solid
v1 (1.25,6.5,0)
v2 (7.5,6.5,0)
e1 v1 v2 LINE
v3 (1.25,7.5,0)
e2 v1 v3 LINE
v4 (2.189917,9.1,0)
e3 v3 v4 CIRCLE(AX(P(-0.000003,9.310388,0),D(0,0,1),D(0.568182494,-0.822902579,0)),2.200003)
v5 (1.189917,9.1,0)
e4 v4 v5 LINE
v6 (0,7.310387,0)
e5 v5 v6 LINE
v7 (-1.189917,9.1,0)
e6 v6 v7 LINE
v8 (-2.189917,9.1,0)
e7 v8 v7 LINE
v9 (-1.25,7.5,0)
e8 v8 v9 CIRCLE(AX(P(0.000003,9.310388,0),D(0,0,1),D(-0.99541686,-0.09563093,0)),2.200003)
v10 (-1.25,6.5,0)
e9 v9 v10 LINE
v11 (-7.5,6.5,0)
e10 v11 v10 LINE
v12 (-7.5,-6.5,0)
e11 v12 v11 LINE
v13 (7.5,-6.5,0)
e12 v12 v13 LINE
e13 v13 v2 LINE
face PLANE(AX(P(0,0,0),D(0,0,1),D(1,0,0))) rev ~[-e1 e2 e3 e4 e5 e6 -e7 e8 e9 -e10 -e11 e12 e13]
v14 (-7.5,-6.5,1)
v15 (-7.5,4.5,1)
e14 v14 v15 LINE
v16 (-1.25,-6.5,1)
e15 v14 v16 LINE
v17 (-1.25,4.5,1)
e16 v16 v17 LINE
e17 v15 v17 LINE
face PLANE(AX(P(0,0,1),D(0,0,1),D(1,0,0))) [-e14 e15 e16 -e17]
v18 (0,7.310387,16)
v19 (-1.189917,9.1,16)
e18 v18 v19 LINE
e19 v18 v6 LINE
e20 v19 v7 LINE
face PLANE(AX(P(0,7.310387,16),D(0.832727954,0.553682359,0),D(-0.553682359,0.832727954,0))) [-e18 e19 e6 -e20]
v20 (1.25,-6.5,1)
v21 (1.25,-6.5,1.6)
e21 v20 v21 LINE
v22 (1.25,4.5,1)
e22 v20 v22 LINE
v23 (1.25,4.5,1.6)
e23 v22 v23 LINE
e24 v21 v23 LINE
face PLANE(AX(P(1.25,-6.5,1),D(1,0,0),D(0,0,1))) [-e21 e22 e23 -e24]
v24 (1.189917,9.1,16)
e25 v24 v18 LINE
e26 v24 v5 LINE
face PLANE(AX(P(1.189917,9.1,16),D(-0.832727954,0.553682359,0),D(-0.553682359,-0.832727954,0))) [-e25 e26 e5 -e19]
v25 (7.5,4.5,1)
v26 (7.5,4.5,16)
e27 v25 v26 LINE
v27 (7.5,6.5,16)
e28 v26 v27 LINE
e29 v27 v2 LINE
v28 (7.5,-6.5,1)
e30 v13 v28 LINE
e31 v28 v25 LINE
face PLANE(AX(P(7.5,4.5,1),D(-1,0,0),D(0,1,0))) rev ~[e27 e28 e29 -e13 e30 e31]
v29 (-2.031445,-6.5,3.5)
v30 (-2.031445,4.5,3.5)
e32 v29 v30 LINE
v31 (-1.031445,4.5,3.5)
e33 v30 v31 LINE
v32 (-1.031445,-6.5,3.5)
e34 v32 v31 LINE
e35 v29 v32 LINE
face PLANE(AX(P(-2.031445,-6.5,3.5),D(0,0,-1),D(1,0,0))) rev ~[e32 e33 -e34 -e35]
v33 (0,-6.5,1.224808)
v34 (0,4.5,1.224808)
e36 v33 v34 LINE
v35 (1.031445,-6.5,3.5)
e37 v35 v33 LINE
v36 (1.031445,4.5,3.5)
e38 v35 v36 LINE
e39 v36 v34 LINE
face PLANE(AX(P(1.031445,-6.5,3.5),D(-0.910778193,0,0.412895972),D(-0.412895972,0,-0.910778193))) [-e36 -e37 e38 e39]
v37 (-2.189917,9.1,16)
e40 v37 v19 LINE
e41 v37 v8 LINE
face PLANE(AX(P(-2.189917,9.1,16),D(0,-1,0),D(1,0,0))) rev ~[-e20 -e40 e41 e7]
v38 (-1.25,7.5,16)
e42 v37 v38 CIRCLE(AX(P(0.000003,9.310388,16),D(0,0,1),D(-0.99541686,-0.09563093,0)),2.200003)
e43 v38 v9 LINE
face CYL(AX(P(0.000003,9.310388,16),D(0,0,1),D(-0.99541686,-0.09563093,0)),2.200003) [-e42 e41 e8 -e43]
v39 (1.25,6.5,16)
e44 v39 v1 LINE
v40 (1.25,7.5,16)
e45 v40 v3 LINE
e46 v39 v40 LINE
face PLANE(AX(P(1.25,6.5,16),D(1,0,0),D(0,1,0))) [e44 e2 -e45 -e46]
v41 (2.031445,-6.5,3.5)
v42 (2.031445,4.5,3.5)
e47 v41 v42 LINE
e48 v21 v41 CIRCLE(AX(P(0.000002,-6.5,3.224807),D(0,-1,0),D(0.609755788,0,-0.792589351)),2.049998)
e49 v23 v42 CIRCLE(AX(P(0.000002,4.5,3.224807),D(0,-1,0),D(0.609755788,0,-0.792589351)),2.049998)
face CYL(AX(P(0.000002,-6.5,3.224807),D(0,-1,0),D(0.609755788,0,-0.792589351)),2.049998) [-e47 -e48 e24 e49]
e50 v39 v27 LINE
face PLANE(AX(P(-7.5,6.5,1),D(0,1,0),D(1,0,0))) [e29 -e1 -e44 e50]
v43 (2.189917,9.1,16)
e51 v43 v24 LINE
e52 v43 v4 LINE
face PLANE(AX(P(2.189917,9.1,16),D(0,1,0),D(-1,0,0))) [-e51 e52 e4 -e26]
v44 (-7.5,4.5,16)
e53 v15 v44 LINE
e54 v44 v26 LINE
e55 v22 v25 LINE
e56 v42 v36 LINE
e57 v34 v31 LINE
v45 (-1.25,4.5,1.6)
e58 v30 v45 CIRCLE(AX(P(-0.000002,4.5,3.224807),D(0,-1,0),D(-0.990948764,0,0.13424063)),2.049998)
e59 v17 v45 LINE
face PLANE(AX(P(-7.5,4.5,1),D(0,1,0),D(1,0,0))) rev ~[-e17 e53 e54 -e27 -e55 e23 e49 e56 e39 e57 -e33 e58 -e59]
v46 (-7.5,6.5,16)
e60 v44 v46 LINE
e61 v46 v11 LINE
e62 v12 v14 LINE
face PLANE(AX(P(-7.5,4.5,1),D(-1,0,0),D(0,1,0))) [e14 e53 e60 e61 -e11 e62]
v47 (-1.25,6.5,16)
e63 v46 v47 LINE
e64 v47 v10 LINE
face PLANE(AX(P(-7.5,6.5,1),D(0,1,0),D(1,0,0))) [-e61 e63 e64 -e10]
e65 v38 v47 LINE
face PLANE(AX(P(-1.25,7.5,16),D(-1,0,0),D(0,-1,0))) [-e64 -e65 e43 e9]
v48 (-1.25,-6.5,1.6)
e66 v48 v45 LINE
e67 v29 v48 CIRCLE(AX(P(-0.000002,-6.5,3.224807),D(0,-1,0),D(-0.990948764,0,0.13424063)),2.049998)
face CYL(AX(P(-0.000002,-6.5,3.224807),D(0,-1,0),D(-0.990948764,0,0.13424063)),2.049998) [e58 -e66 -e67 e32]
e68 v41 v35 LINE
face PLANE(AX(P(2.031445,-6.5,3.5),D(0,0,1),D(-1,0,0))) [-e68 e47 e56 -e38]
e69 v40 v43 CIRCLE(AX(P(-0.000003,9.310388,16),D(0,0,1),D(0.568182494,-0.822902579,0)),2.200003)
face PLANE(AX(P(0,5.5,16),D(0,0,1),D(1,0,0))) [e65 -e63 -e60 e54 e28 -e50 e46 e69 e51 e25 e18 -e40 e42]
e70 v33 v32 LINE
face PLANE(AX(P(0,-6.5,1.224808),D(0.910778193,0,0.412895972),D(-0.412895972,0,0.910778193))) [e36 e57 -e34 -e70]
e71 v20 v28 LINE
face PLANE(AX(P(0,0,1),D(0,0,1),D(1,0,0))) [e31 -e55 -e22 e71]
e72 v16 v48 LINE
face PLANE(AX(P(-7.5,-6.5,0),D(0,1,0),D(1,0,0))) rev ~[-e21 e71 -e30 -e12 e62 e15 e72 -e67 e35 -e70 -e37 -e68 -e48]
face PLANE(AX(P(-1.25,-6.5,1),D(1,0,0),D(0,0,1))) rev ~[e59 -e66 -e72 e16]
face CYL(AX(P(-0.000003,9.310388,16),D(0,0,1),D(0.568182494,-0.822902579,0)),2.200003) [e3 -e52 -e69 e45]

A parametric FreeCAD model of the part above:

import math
import FreeCAD as App
import Part
import Sketcher
from FreeCAD import Vector
Q = App.Units.Quantity

doc = App.newDocument("Part")
body = doc.addObject("PartDesign::Body", "Body")

# Sketch on XY plane
sketch1 = body.newObject("Sketcher::SketchObject", "Sketch")
sketch1.AttachmentSupport = (doc.getObject("XY_Plane"), [""])
sketch1.MapMode = "FlatFace"
sketch1.addGeometry([
    Part.LineSegment(Vector(-8, 6, 0), Vector(-8, -6, 0)),
    Part.LineSegment(Vector(-8, -6, 0), Vector(8, -6, 0)),
    Part.LineSegment(Vector(8, -6, 0), Vector(8, 6, 0)),
    Part.LineSegment(Vector(8, 6, 0), Vector(-8, 6, 0)),
], False)
sketch1.addConstraint([
    Sketcher.Constraint("Coincident", 0, 2, 1, 1),
    Sketcher.Constraint("Coincident", 1, 2, 2, 1),
    Sketcher.Constraint("Coincident", 2, 2, 3, 1),
    Sketcher.Constraint("Coincident", 3, 2, 0, 1),
    Sketcher.Constraint("Vertical", 0),
    Sketcher.Constraint("Horizontal", 1),
    Sketcher.Constraint("Vertical", 2),
    Sketcher.Constraint("Horizontal", 3),
    Sketcher.Constraint("Symmetric", 0, 2, 2, 2, -1, 1),
    Sketcher.Constraint("DistanceX", 1, 1, 1, 2, Q("15 mm")),
    Sketcher.Constraint("DistanceY", 0, 2, 0, 1, Q("13 mm")),
])
pad1 = body.newObject("PartDesign::Pad", "Pad")
pad1.Profile = sketch1
pad1.Length = 1

# Sketch on XY plane
sketch2 = body.newObject("Sketcher::SketchObject", "Sketch001")
sketch2.AttachmentSupport = (doc.getObject("XY_Plane"), [""])
sketch2.MapMode = "FlatFace"
sketch2.AttachmentOffset = App.Placement(Vector(0, 0, 1), App.Rotation())
sketch2.addGeometry([
    Part.LineSegment(Vector(-7.5, 6.5, 0), Vector(-7.5, 4.5, 0)),
    Part.LineSegment(Vector(-7.5, 4.5, 0), Vector(7.5, 4.5, 0)),
    Part.LineSegment(Vector(7.5, 4.5, 0), Vector(7.5, 6.5, 0)),
    Part.LineSegment(Vector(7.5, 6.5, 0), Vector(-7.5, 6.5, 0)),
], False)
sketch2.addConstraint([
    Sketcher.Constraint("Coincident", 0, 2, 1, 1),
    Sketcher.Constraint("Coincident", 1, 2, 2, 1),
    Sketcher.Constraint("Coincident", 2, 2, 3, 1),
    Sketcher.Constraint("Coincident", 3, 2, 0, 1),
    Sketcher.Constraint("Vertical", 0),
    Sketcher.Constraint("Horizontal", 1),
    Sketcher.Constraint("Vertical", 2),
    Sketcher.Constraint("Horizontal", 3),
    Sketcher.Constraint("DistanceX", 1, 1, 1, 2, Q("15 mm")),
    Sketcher.Constraint("DistanceY", 0, 2, 0, 1, Q("2 mm")),
    Sketcher.Constraint("DistanceX", 0, 2, -1, 1, Q("7.5 mm")),
    Sketcher.Constraint("DistanceY", -1, 1, 0, 2, Q("4.5 mm")),
])
pad2 = body.newObject("PartDesign::Pad", "Pad001")
pad2.Profile = sketch2
pad2.Length = 15

# Sketch on XZ plane
sketch3 = body.newObject("Sketcher::SketchObject", "Sketch002")
sketch3.AttachmentSupport = (doc.getObject("XZ_Plane"), [""])
sketch3.MapMode = "FlatFace"
sketch3.AttachmentOffset = App.Placement(Vector(0, 0, 6.5), App.Rotation())
sketch3.addGeometry([
    Part.LineSegment(Vector(-1.2, 1, 0), Vector(1.2, 1, 0)),  # 0
    Part.LineSegment(Vector(1.2, 1, 0), Vector(1.2, 1.6, 0)),  # 1
    Part.ArcOfCircle(Part.Circle(Vector(0, 3.2, 0), Vector(0, 0, 1), 2), math.radians(-52), math.radians(8)),  # 2
    Part.LineSegment(Vector(2, 3.5, 0), Vector(1, 3.5, 0)),  # 3
    Part.LineSegment(Vector(1, 3.5, 0), Vector(0, 1.2, 0)),  # 4
    Part.LineSegment(Vector(0, 1.2, 0), Vector(-1, 3.5, 0)),  # 5
    Part.LineSegment(Vector(-1, 3.5, 0), Vector(-2, 3.5, 0)),  # 6
    Part.ArcOfCircle(Part.Circle(Vector(0, 3.2, 0), Vector(0, 0, 1), 2), math.radians(172), math.radians(232)),  # 7
    Part.LineSegment(Vector(-1.2, 1.6, 0), Vector(-1.2, 1, 0)),  # 8
], False)
sketch3.addConstraint([
    Sketcher.Constraint("Coincident", 0, 2, 1, 1),
    Sketcher.Constraint("Coincident", 1, 2, 2, 1),
    Sketcher.Constraint("Coincident", 2, 2, 3, 1),
    Sketcher.Constraint("Coincident", 3, 2, 4, 1),
    Sketcher.Constraint("Coincident", 4, 2, 5, 1),
    Sketcher.Constraint("Coincident", 5, 2, 6, 1),
    Sketcher.Constraint("Coincident", 6, 2, 7, 1),
    Sketcher.Constraint("Coincident", 7, 2, 8, 1),
    Sketcher.Constraint("Coincident", 8, 2, 0, 1),
    Sketcher.Constraint("Horizontal", 0),
    Sketcher.Constraint("Vertical", 1),
    Sketcher.Constraint("Horizontal", 3),
    Sketcher.Constraint("Horizontal", 6),
    Sketcher.Constraint("Vertical", 8),
    Sketcher.Constraint("Coincident", 7, 3, 2, 3),
    Sketcher.Constraint("Equal", 2, 7),
    Sketcher.Constraint("Symmetric", 3, 2, 5, 2, -2),
    Sketcher.Constraint("Symmetric", 1, 2, 7, 2, -2),
    Sketcher.Constraint("PointOnObject", 4, 2, -2),
    Sketcher.Constraint("DistanceX", 3, 2, 3, 1, Q("1 mm")),
    Sketcher.Constraint("Radius", 2, Q("2.049998 mm")),
    Sketcher.Constraint("DistanceX", 0, 1, 0, 2, Q("2.5 mm")),
    Sketcher.Constraint("DistanceY", 1, 1, 1, 2, Q("0.6 mm")),
    Sketcher.Constraint("DistanceY", -1, 1, 0, 2, Q("1 mm")),
    Sketcher.Constraint("DistanceY", 4, 2, 2, 3, Q("1.999999 mm")),
    Sketcher.Constraint("DistanceY", -1, 1, 2, 2, Q("3.5 mm")),
])
pad3 = body.newObject("PartDesign::Pad", "Pad002")
pad3.Profile = sketch3
pad3.Length = 11
pad3.Reversed = True

# Sketch on XY plane
sketch4 = body.newObject("Sketcher::SketchObject", "Sketch003")
sketch4.AttachmentSupport = (doc.getObject("XY_Plane"), [""])
sketch4.MapMode = "FlatFace"
sketch4.AttachmentOffset = App.Placement(Vector(0, 0, 16), App.Rotation())
sketch4.addGeometry([
    Part.LineSegment(Vector(-1.2, 7.5, 0), Vector(-1.2, 6.5, 0)),  # 0
    Part.LineSegment(Vector(-1.2, 6.5, 0), Vector(1.2, 6.5, 0)),  # 1
    Part.LineSegment(Vector(1.2, 6.5, 0), Vector(1.2, 7.5, 0)),  # 2
    Part.ArcOfCircle(Part.Circle(Vector(0, 9.3, 0), Vector(0, 0, 1), 2.2), math.radians(-55), math.radians(-5)),  # 3
    Part.LineSegment(Vector(2.2, 9.1, 0), Vector(1.2, 9.1, 0)),  # 4
    Part.LineSegment(Vector(1.2, 9.1, 0), Vector(0, 7.3, 0)),  # 5
    Part.LineSegment(Vector(0, 7.3, 0), Vector(-1.2, 9.1, 0)),  # 6
    Part.LineSegment(Vector(-1.2, 9.1, 0), Vector(-2.2, 9.1, 0)),  # 7
    Part.ArcOfCircle(Part.Circle(Vector(0, 9.3, 0), Vector(0, 0, 1), 2.2), math.radians(-175), math.radians(-125)),  # 8
], False)
sketch4.addConstraint([
    Sketcher.Constraint("Coincident", 0, 2, 1, 1),
    Sketcher.Constraint("Coincident", 1, 2, 2, 1),
    Sketcher.Constraint("Coincident", 2, 2, 3, 1),
    Sketcher.Constraint("Coincident", 3, 2, 4, 1),
    Sketcher.Constraint("Coincident", 4, 2, 5, 1),
    Sketcher.Constraint("Coincident", 5, 2, 6, 1),
    Sketcher.Constraint("Coincident", 6, 2, 7, 1),
    Sketcher.Constraint("Coincident", 7, 2, 8, 1),
    Sketcher.Constraint("Coincident", 8, 2, 0, 1),
    Sketcher.Constraint("Vertical", 0),
    Sketcher.Constraint("Horizontal", 1),
    Sketcher.Constraint("Vertical", 2),
    Sketcher.Constraint("Horizontal", 4),
    Sketcher.Constraint("Horizontal", 7),
    Sketcher.Constraint("Coincident", 8, 3, 3, 3),
    Sketcher.Constraint("Equal", 3, 8),
    Sketcher.Constraint("Symmetric", 4, 2, 6, 2, -2),
    Sketcher.Constraint("Symmetric", 2, 2, 8, 2, -2),
    Sketcher.Constraint("PointOnObject", 5, 2, -2),
    Sketcher.Constraint("Equal", 7, 0),
    Sketcher.Constraint("DistanceX", 4, 2, 4, 1, Q("1 mm")),
    Sketcher.Constraint("DistanceX", 1, 1, 1, 2, Q("2.5 mm")),
    Sketcher.Constraint("DistanceY", 5, 2, 3, 3, Q("2.000001 mm")),
    Sketcher.Constraint("DistanceY", -1, 1, 0, 2, Q("6.5 mm")),
    Sketcher.Constraint("DistanceY", -1, 1, 3, 2, Q("9.1 mm")),
    Sketcher.Constraint("Angle", 5, Q("-123.620007 deg")),
])
pad4 = body.newObject("PartDesign::Pad", "Pad003")
pad4.Profile = sketch4
pad4.Length = 16
pad4.Reversed = True

doc.recompute()
